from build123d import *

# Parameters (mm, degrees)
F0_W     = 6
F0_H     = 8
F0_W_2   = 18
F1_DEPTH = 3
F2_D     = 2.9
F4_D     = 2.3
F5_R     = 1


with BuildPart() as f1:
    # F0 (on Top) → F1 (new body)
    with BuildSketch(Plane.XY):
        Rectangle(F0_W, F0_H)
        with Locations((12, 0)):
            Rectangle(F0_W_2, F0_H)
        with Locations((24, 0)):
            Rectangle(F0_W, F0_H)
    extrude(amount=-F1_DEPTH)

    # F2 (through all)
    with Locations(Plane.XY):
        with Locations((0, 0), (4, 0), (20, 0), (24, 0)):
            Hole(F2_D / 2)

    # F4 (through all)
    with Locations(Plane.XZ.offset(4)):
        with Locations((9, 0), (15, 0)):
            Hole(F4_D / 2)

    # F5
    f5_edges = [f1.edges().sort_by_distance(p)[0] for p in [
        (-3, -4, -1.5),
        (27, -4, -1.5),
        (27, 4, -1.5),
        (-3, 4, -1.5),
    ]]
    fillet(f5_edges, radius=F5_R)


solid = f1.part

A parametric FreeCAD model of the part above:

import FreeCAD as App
import Part
import Sketcher
from FreeCAD import Vector


def edges_at(feature, points):
    """Names of the edges that pass closest to the given points."""
    edges = feature.Shape.Edges
    near = lambda p: min(range(len(edges)), key=lambda i: edges[i].distToShape(Part.Vertex(*p))[0])
    return sorted({f"Edge{near(p) + 1}" for p in points})

doc = App.newDocument("Part")
body = doc.addObject("PartDesign::Body", "Body")

# Sketch on XY plane
sketch1 = doc.addObject("Sketcher::SketchObject", "Sketch")
body.addObject(sketch1)
sketch1.AttachmentSupport = (doc.XY_Plane, [""])
sketch1.MapMode = "FlatFace"
sketch1.addGeometry(Part.LineSegment(Vector(-3, 4, 0), Vector(-3, -4, 0)), False)
sketch1.addGeometry(Part.LineSegment(Vector(-3, -4, 0), Vector(27, -4, 0)), False)
sketch1.addGeometry(Part.LineSegment(Vector(27, -4, 0), Vector(27, 4, 0)), False)
sketch1.addGeometry(Part.LineSegment(Vector(27, 4, 0), Vector(-3, 4, 0)), False)
sketch1.addConstraint(Sketcher.Constraint("Coincident", 0, 2, 1, 1))
sketch1.addConstraint(Sketcher.Constraint("Coincident", 1, 2, 2, 1))
sketch1.addConstraint(Sketcher.Constraint("Coincident", 2, 2, 3, 1))
sketch1.addConstraint(Sketcher.Constraint("Coincident", 3, 2, 0, 1))
sketch1.addConstraint(Sketcher.Constraint("Vertical", 0))
sketch1.addConstraint(Sketcher.Constraint("Horizontal", 1))
sketch1.addConstraint(Sketcher.Constraint("Vertical", 2))
sketch1.addConstraint(Sketcher.Constraint("Horizontal", 3))
sketch1.addConstraint(Sketcher.Constraint("DistanceX", 1, 1, 1, 2, 30.0))
sketch1.addConstraint(Sketcher.Constraint("DistanceY", 0, 2, 0, 1, 8.0))
sketch1.addConstraint(Sketcher.Constraint("DistanceX", 0, 2, -1, 1, 3.0))
sketch1.addConstraint(Sketcher.Constraint("DistanceY", 0, 2, -1, 1, 4.0))
pad1 = doc.addObject("PartDesign::Pad", "Pad")
body.addObject(pad1)
pad1.Profile = sketch1
pad1.Length = 3
pad1.Reversed = True

# Sketch on XY plane
sketch2 = doc.addObject("Sketcher::SketchObject", "Sketch001")
body.addObject(sketch2)
sketch2.AttachmentSupport = (doc.XY_Plane, [""])
sketch2.MapMode = "FlatFace"
sketch2.addGeometry(Part.Circle(Vector(0, 0, 0), Vector(0, 0, 1), 1.4), False)
sketch2.addGeometry(Part.Circle(Vector(4, 0, 0), Vector(0, 0, 1), 1.4), False)
sketch2.addGeometry(Part.Circle(Vector(20, 0, 0), Vector(0, 0, 1), 1.4), False)
sketch2.addGeometry(Part.Circle(Vector(24, 0, 0), Vector(0, 0, 1), 1.4), False)
sketch2.addConstraint(Sketcher.Constraint("Coincident", 0, 3, -1, 1))
sketch2.addConstraint(Sketcher.Constraint("Equal", 0, 1))
sketch2.addConstraint(Sketcher.Constraint("Equal", 1, 2))
sketch2.addConstraint(Sketcher.Constraint("Equal", 2, 3))
sketch2.addConstraint(Sketcher.Constraint("PointOnObject", 1, 3, -1))
sketch2.addConstraint(Sketcher.Constraint("PointOnObject", 2, 3, -1))
sketch2.addConstraint(Sketcher.Constraint("PointOnObject", 3, 3, -1))
sketch2.addConstraint(Sketcher.Constraint("Diameter", 0, 2.9))
sketch2.addConstraint(Sketcher.Constraint("DistanceX", -1, 1, 1, 3, 4.0))
sketch2.addConstraint(Sketcher.Constraint("DistanceX", -1, 1, 2, 3, 20.0))
sketch2.addConstraint(Sketcher.Constraint("DistanceX", -1, 1, 3, 3, 24.0))
doc.recompute()
hole = doc.addObject("PartDesign::Hole", "Hole")
body.addObject(hole)
hole.Profile = sketch2
hole.ThreadType = "None"
hole.Diameter = 2.9
hole.DepthType = "ThroughAll"

# Sketch on XZ plane
sketch3 = doc.addObject("Sketcher::SketchObject", "Sketch002")
body.addObject(sketch3)
sketch3.AttachmentSupport = (doc.XZ_Plane, [""])
sketch3.MapMode = "FlatFace"
sketch3.AttachmentOffset = App.Placement(Vector(0, 0, 4), App.Rotation())
sketch3.addGeometry(Part.Circle(Vector(9, 0, 0), Vector(0, 0, 1), 1.1), False)
sketch3.addGeometry(Part.Circle(Vector(15, 0, 0), Vector(0, 0, 1), 1.1), False)
sketch3.addConstraint(Sketcher.Constraint("Equal", 0, 1))
sketch3.addConstraint(Sketcher.Constraint("PointOnObject", 0, 3, -1))
sketch3.addConstraint(Sketcher.Constraint("PointOnObject", 1, 3, -1))
sketch3.addConstraint(Sketcher.Constraint("Diameter", 0, 2.3))
sketch3.addConstraint(Sketcher.Constraint("DistanceX", -1, 1, 0, 3, 9.0))
sketch3.addConstraint(Sketcher.Constraint("DistanceX", -1, 1, 1, 3, 15.0))
doc.recompute()
hole2 = doc.addObject("PartDesign::Hole", "Hole001")
body.addObject(hole2)
hole2.Profile = sketch3
hole2.ThreadType = "None"
hole2.Diameter = 2.3
hole2.DepthType = "ThroughAll"
doc.recompute()

fillet = doc.addObject("PartDesign::Fillet", "Fillet")
body.addObject(fillet)
fillet.Base = (hole2, edges_at(hole2, [
    (-3, -4, -1.5),
    (27, -4, -1.5),
    (27, 4, -1.5),
    (-3, 4, -1.5),
]))
fillet.Radius = 1

doc.recompute()
